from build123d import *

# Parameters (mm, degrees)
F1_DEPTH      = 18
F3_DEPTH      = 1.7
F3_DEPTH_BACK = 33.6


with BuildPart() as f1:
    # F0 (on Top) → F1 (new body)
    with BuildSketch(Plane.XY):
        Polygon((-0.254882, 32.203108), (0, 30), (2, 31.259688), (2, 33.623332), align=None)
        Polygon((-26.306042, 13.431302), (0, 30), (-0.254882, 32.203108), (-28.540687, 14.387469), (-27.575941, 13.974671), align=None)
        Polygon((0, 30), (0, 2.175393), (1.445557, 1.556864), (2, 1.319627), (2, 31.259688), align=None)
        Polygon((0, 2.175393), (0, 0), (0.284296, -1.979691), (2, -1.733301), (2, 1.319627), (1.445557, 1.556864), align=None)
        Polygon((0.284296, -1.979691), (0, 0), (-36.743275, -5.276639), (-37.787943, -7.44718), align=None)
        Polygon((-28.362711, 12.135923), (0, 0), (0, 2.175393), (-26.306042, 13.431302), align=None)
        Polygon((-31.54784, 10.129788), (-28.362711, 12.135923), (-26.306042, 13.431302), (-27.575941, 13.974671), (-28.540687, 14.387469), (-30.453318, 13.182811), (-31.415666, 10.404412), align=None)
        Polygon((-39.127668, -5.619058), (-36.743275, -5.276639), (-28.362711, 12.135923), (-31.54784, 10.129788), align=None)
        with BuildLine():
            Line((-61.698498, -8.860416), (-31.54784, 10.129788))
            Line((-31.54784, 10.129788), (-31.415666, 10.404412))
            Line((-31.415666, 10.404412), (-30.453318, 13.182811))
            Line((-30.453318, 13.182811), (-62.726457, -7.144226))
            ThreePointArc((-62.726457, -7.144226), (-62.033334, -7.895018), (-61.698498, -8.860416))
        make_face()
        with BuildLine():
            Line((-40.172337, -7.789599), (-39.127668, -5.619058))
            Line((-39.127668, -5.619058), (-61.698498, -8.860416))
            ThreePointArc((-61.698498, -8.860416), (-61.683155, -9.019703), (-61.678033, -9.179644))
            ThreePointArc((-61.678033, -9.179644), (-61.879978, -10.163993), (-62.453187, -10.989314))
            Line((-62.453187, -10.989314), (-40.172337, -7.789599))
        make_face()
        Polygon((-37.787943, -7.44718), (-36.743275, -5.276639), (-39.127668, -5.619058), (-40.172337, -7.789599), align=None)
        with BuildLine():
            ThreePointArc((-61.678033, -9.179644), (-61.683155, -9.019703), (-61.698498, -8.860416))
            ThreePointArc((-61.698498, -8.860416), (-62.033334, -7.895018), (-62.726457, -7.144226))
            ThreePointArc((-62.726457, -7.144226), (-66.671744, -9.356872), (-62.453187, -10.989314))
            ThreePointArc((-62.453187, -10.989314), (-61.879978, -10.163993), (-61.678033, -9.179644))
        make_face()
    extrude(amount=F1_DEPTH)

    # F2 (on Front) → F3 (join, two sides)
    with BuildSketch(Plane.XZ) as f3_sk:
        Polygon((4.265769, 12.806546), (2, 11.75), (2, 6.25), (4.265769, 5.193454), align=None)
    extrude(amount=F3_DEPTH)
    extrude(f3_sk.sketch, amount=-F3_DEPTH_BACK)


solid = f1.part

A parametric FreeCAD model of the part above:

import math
import FreeCAD as App
import Part
import Sketcher

V = App.Vector
Q = App.Units.Quantity


def add_polygon(sketch, points):
    """Adds a closed chain of lines whose ends are joined by coincident constraints."""
    first, n = sketch.GeometryCount, len(points)
    for a, b in zip(points, points[1:] + points[:1]):
        sketch.addGeometry(Part.LineSegment(App.Vector(*a, 0), App.Vector(*b, 0)), False)
    for i in range(n):
        sketch.addConstraint(Sketcher.Constraint("Coincident", first + i, 2, first + (i + 1) % n, 1))

doc = App.newDocument("Part")
body = doc.addObject("PartDesign::Body", "Body")

# Sketch on XY plane
sketch1 = body.newObject("Sketcher::SketchObject", "Sketch")
sketch1.AttachmentSupport = (doc.getObject("XY_Plane"), [""])
sketch1.MapMode = "FlatFace"
sketch1.addGeometry(Part.LineSegment(V(-30.453318, 13.182811, 0), V(-62.726457, -7.144226, 0)), False)  # 0
sketch1.addGeometry(Part.ArcOfCircle(Part.Circle(V(-64.178034, -9.179644, 0), V(0, 0, 1), 2.5), math.radians(54.505093), math.radians(313.625247)), False)  # 1
sketch1.addGeometry(Part.LineSegment(V(-62.453187, -10.989314, 0), V(-40.172337, -7.789599, 0)), False)  # 2
sketch1.addGeometry(Part.LineSegment(V(-40.172337, -7.789599, 0), V(-37.787943, -7.44718, 0)), False)  # 3
sketch1.addGeometry(Part.LineSegment(V(-37.787943, -7.44718, 0), V(0.284296, -1.979691, 0)), False)  # 4
sketch1.addGeometry(Part.LineSegment(V(0.284296, -1.979691, 0), V(2, -1.733301, 0)), False)  # 5
sketch1.addGeometry(Part.LineSegment(V(2, -1.733301, 0), V(2, 33.623332, 0)), False)  # 6
sketch1.addGeometry(Part.LineSegment(V(2, 33.623332, 0), V(-0.254882, 32.203108, 0)), False)  # 7
sketch1.addGeometry(Part.LineSegment(V(-0.254882, 32.203108, 0), V(-28.540687, 14.387469, 0)), False)  # 8
sketch1.addGeometry(Part.LineSegment(V(-28.540687, 14.387469, 0), V(-30.453318, 13.182811, 0)), False)  # 9
add_polygon(sketch1, [(-39.127668, -5.619058), (-61.698498, -8.860416), (-31.54784, 10.129788)])  # lines 10-12
add_polygon(sketch1, [(0, 0), (-36.743275, -5.276639), (-28.362711, 12.135923)])  # lines 13-15
add_polygon(sketch1, [(0, 2.175393), (-26.306042, 13.431302), (0, 30)])  # lines 16-18
sketch1.addConstraint(Sketcher.Constraint("Coincident", 0, 2, 1, 1))
sketch1.addConstraint(Sketcher.Constraint("Coincident", 1, 2, 2, 1))
sketch1.addConstraint(Sketcher.Constraint("Coincident", 2, 2, 3, 1))
sketch1.addConstraint(Sketcher.Constraint("Coincident", 3, 2, 4, 1))
sketch1.addConstraint(Sketcher.Constraint("Coincident", 4, 2, 5, 1))
sketch1.addConstraint(Sketcher.Constraint("Coincident", 5, 2, 6, 1))
sketch1.addConstraint(Sketcher.Constraint("Coincident", 6, 2, 7, 1))
sketch1.addConstraint(Sketcher.Constraint("Coincident", 7, 2, 8, 1))
sketch1.addConstraint(Sketcher.Constraint("Coincident", 8, 2, 9, 1))
sketch1.addConstraint(Sketcher.Constraint("Coincident", 9, 2, 0, 1))
sketch1.addConstraint(Sketcher.Constraint("Vertical", 6))
sketch1.addConstraint(Sketcher.Constraint("Vertical", 18))
sketch1.addConstraint(Sketcher.Constraint("Coincident", 15, 2, -1, 1))
sketch1.addConstraint(Sketcher.Constraint("PointOnObject", 17, 2, -2))
sketch1.addConstraint(Sketcher.Constraint("Radius", 1, 2.5))
sketch1.addConstraint(Sketcher.Constraint("DistanceX", -1, 1, 5, 2, 2.0))
sketch1.addConstraint(Sketcher.Constraint("DistanceY", -1, 1, 17, 2, 30.0))
sketch1.addConstraint(Sketcher.Constraint("DistanceY", 2, 2, -1, 1, 7.789599))
sketch1.addConstraint(Sketcher.Constraint("DistanceY", 5, 2, -1, 1, 1.733301))
sketch1.addConstraint(Sketcher.Constraint("DistanceY", 4, 2, 7, 2, 34.182799))
sketch1.addConstraint(Sketcher.Constraint("DistanceY", 1, 2, 10, 2, 2.128898))
sketch1.addConstraint(Sketcher.Constraint("Distance", 2, 22.50943))
sketch1.addConstraint(Sketcher.Constraint("Distance", 7, 2.664869))
sketch1.addConstraint(Sketcher.Constraint("Distance", 9, 2.260389))
sketch1.addConstraint(Sketcher.Constraint("Distance", 11, 35.63271))
sketch1.addConstraint(Sketcher.Constraint("Distance", 17, 31.089059))
sketch1.addConstraint(Sketcher.Constraint("DistanceY", 6, 1, 6, 2, 35.356633))
sketch1.addConstraint(Sketcher.Constraint("DistanceY", 18, 2, 18, 1, 27.824607))
sketch1.addConstraint(Sketcher.Constraint("DistanceY", 3, 2, -1, 1, 7.44718))
sketch1.addConstraint(Sketcher.Constraint("DistanceY", 4, 2, -1, 1, 1.979691))
sketch1.addConstraint(Sketcher.Constraint("DistanceY", -1, 1, 8, 2, 14.387469))
sketch1.addConstraint(Sketcher.Constraint("DistanceY", -1, 1, 9, 2, 13.182811))
sketch1.addConstraint(Sketcher.Constraint("DistanceX", 11, 2, -1, 1, 31.54784))
sketch1.addConstraint(Sketcher.Constraint("DistanceY", 13, 2, -1, 1, 5.276639))
sketch1.addConstraint(Sketcher.Constraint("DistanceX", 14, 2, -1, 1, 28.362711))
sketch1.addConstraint(Sketcher.Constraint("DistanceY", 1, 3, 0, 2, 2.035418))
sketch1.addConstraint(Sketcher.Constraint("DistanceY", 1, 2, 1, 3, 1.80967))
sketch1.addConstraint(Sketcher.Constraint("DistanceX", 1, 2, 2, 2, 22.28085))
sketch1.addConstraint(Sketcher.Constraint("DistanceX", 1, 3, 3, 2, 26.390091))
sketch1.addConstraint(Sketcher.Constraint("DistanceX", 3, 2, 4, 2, 38.072239))
sketch1.addConstraint(Sketcher.Constraint("DistanceX", 3, 2, 7, 2, 37.533061))
sketch1.addConstraint(Sketcher.Constraint("DistanceX", 2, 2, 8, 2, 11.63165))
sketch1.addConstraint(Sketcher.Constraint("DistanceX", 0, 2, 10, 2, 1.027959))
sketch1.addConstraint(Sketcher.Constraint("DistanceX", 2, 2, 12, 2, 1.044669))
sketch1.addConstraint(Sketcher.Constraint("DistanceY", 2, 2, 12, 2, 2.170541))
sketch1.addConstraint(Sketcher.Constraint("DistanceX", 3, 2, 13, 2, 1.044668))
sketch1.addConstraint(Sketcher.Constraint("DistanceY", 12, 2, 14, 2, 17.754981))
sketch1.addConstraint(Sketcher.Constraint("DistanceX", 14, 2, 16, 2, 2.056669))
pad1 = body.newObject("PartDesign::Pad", "Pad")
pad1.Profile = sketch1
pad1.Length = 18

# Sketch on XZ plane
sketch2 = body.newObject("Sketcher::SketchObject", "Sketch001")
sketch2.AttachmentSupport = (doc.getObject("XZ_Plane"), [""])
sketch2.MapMode = "FlatFace"
add_polygon(sketch2, [(4.265769, 12.806546), (2, 11.75), (2, 6.25), (4.265769, 5.193454)])  # lines 0-3
sketch2.addConstraint(Sketcher.Constraint("Vertical", 1))
sketch2.addConstraint(Sketcher.Constraint("Vertical", 3))
sketch2.addConstraint(Sketcher.Constraint("Equal", 0, 2))
sketch2.addConstraint(Sketcher.Constraint("Angle", 0, Q("-154.999988 deg")))
sketch2.addConstraint(Sketcher.Constraint("DistanceY", 1, 2, 1, 1, 5.5))
sketch2.addConstraint(Sketcher.Constraint("DistanceX", -1, 1, 0, 2, 2.0))
sketch2.addConstraint(Sketcher.Constraint("Distance", 0, 2.5))
sketch2.addConstraint(Sketcher.Constraint("DistanceY", -1, 1, 0, 2, 11.75))
pad2 = body.newObject("PartDesign::Pad", "Pad001")
pad2.Profile = sketch2
pad2.Type = "TwoLengths"
pad2.Length = 1.7
pad2.Length2 = 33.6

doc.recompute()
